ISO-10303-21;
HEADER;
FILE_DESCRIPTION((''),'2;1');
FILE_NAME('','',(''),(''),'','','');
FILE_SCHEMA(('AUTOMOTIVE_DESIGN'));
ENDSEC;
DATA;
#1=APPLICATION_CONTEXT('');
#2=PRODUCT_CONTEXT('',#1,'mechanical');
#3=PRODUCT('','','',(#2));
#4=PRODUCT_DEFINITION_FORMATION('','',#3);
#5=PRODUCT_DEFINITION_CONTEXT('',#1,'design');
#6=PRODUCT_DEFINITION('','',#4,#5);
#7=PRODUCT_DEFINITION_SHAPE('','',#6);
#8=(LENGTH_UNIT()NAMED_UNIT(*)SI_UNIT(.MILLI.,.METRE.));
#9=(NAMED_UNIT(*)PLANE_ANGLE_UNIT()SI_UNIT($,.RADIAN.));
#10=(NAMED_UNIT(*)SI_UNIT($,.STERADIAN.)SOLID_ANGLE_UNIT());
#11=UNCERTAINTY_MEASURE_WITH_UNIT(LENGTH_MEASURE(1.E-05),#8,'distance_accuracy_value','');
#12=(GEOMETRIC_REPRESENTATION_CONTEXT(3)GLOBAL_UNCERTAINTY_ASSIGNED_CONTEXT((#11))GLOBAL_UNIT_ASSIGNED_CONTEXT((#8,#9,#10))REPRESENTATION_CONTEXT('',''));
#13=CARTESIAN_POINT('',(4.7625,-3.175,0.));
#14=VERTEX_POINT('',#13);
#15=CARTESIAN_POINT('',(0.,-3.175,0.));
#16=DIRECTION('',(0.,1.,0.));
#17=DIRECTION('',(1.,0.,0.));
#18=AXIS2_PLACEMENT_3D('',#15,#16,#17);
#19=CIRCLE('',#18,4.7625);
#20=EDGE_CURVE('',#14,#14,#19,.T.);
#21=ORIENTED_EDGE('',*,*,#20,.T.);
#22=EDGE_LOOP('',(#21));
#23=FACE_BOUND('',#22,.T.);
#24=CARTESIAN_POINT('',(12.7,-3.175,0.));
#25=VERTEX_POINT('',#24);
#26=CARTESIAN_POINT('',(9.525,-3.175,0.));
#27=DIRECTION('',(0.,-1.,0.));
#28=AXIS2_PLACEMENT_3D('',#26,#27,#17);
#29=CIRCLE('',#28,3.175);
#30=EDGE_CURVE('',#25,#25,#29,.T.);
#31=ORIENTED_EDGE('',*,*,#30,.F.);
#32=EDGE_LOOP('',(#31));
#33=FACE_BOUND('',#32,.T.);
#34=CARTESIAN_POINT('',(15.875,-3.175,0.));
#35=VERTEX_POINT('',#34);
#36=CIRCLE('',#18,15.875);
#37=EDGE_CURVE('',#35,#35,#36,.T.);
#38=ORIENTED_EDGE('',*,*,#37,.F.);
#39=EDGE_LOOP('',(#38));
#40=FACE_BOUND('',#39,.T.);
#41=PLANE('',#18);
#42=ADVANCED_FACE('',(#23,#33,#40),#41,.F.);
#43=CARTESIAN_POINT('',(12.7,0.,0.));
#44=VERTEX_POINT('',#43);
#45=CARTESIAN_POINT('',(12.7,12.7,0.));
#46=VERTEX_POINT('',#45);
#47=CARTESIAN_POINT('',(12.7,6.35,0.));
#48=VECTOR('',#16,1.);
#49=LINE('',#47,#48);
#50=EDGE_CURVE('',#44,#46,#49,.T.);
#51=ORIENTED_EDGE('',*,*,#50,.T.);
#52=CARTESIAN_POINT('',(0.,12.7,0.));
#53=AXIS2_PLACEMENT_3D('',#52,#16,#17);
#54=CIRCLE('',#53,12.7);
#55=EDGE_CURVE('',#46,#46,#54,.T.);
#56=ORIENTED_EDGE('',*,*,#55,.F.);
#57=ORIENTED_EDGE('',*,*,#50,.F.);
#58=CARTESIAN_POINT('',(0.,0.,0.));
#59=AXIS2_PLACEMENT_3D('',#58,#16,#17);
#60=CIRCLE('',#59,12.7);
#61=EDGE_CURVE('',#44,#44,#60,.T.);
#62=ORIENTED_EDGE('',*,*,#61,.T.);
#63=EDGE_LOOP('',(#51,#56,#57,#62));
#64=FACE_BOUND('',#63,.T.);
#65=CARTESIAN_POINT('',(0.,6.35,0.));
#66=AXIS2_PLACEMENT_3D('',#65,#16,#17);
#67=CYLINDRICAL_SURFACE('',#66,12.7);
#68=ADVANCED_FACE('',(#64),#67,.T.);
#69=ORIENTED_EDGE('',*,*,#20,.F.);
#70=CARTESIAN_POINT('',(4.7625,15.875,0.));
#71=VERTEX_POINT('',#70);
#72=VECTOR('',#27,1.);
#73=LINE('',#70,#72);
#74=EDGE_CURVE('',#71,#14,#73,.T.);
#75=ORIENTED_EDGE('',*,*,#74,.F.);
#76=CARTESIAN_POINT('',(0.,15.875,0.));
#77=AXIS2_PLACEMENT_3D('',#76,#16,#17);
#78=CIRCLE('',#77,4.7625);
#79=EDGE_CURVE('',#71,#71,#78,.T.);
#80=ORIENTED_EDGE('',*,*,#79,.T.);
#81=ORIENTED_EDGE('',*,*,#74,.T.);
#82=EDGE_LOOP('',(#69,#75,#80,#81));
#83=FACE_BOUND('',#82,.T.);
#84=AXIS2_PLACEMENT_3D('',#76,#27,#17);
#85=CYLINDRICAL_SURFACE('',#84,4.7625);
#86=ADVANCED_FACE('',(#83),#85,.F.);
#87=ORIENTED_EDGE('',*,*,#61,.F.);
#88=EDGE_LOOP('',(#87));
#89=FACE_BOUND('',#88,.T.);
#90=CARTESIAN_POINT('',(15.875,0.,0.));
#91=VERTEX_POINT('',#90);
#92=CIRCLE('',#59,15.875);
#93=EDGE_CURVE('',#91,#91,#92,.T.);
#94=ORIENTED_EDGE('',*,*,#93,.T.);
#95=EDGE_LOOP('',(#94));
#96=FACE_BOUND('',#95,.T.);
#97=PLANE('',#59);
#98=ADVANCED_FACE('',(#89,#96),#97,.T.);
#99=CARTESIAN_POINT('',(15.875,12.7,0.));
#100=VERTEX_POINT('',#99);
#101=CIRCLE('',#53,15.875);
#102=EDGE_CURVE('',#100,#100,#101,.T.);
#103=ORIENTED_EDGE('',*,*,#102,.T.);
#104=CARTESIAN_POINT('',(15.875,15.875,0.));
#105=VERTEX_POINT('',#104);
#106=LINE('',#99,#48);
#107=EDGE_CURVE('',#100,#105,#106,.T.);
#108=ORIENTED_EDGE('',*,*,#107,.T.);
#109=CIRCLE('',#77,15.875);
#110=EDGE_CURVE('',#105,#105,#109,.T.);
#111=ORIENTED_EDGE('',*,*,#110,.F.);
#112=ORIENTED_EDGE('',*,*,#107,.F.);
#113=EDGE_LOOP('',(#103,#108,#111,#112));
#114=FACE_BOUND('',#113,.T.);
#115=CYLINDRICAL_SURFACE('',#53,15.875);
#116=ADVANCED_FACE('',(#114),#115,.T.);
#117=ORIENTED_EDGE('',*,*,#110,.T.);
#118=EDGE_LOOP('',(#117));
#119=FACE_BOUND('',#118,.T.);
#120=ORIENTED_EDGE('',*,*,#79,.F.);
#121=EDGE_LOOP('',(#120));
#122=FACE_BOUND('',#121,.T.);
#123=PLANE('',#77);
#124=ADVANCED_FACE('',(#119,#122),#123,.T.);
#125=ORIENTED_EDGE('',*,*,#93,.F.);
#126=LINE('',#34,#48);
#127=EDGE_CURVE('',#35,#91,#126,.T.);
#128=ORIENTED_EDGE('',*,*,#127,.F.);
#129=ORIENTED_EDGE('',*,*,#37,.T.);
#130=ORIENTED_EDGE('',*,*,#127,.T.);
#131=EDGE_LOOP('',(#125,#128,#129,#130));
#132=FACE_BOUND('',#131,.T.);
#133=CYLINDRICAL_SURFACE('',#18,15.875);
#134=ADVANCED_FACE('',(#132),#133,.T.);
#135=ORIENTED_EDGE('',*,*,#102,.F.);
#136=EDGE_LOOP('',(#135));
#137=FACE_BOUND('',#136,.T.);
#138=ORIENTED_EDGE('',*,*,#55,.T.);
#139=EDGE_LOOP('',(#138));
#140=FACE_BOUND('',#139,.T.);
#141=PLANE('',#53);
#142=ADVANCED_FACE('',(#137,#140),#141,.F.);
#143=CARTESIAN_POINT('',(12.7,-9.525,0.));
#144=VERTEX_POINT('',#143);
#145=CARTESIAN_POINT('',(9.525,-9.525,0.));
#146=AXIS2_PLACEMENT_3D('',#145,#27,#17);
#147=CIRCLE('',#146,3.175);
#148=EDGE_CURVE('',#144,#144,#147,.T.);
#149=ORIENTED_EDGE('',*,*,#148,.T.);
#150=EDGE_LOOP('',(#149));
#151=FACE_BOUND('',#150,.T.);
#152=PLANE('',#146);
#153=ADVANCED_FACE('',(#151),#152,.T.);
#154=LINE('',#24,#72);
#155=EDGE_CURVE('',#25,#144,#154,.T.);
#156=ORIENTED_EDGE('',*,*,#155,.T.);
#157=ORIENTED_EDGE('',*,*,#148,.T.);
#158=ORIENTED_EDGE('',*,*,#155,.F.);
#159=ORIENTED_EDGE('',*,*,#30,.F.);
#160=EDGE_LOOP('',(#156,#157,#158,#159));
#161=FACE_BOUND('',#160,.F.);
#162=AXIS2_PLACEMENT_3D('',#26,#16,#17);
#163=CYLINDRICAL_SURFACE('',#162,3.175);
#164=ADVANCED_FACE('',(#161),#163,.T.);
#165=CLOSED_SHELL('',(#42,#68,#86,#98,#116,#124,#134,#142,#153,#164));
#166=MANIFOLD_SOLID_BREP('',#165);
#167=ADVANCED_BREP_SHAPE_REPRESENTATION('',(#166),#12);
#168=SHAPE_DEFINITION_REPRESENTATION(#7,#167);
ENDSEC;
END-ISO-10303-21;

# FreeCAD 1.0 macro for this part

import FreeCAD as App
import Part
import Sketcher

V = App.Vector
Q = App.Units.Quantity

doc = App.newDocument("Part")
body = doc.addObject("PartDesign::Body", "Body")

# Sketch on XY plane
sketch1 = body.newObject("Sketcher::SketchObject", "Sketch")
sketch1.AttachmentSupport = (doc.getObject("XY_Plane"), [""])
sketch1.MapMode = "FlatFace"
sketch1.addGeometry(Part.LineSegment(V(4.8, -3.2, 0), V(15.9, -3.2, 0)), False)
sketch1.addGeometry(Part.LineSegment(V(15.9, -3.2, 0), V(15.9, 0, 0)), False)
sketch1.addGeometry(Part.LineSegment(V(15.9, 0, 0), V(12.7, 0, 0)), False)
sketch1.addGeometry(Part.LineSegment(V(12.7, 0, 0), V(12.7, 12.7, 0)), False)
sketch1.addGeometry(Part.LineSegment(V(12.7, 12.7, 0), V(15.9, 12.7, 0)), False)
sketch1.addGeometry(Part.LineSegment(V(15.9, 12.7, 0), V(15.9, 15.9, 0)), False)
sketch1.addGeometry(Part.LineSegment(V(15.9, 15.9, 0), V(4.8, 15.9, 0)), False)
sketch1.addGeometry(Part.LineSegment(V(4.8, 15.9, 0), V(4.8, -3.2, 0)), False)
sketch1.addConstraint(Sketcher.Constraint("Coincident", 0, 2, 1, 1))
sketch1.addConstraint(Sketcher.Constraint("Coincident", 1, 2, 2, 1))
sketch1.addConstraint(Sketcher.Constraint("Coincident", 2, 2, 3, 1))
sketch1.addConstraint(Sketcher.Constraint("Coincident", 3, 2, 4, 1))
sketch1.addConstraint(Sketcher.Constraint("Coincident", 4, 2, 5, 1))
sketch1.addConstraint(Sketcher.Constraint("Coincident", 5, 2, 6, 1))
sketch1.addConstraint(Sketcher.Constraint("Coincident", 6, 2, 7, 1))
sketch1.addConstraint(Sketcher.Constraint("Coincident", 7, 2, 0, 1))
sketch1.addConstraint(Sketcher.Constraint("Horizontal", 0))
sketch1.addConstraint(Sketcher.Constraint("Vertical", 1))
sketch1.addConstraint(Sketcher.Constraint("Horizontal", 2))
sketch1.addConstraint(Sketcher.Constraint("Vertical", 3))
sketch1.addConstraint(Sketcher.Constraint("Horizontal", 4))
sketch1.addConstraint(Sketcher.Constraint("Vertical", 5))
sketch1.addConstraint(Sketcher.Constraint("Horizontal", 6))
sketch1.addConstraint(Sketcher.Constraint("Vertical", 7))
sketch1.addConstraint(Sketcher.Constraint("PointOnObject", 1, 2, -1))
sketch1.addConstraint(Sketcher.Constraint("Vertical", 1, 2, 4, 2))
sketch1.addConstraint(Sketcher.Constraint("Equal", 4, 1))
sketch1.addConstraint(Sketcher.Constraint("Equal", 1, 5))
sketch1.addConstraint(Sketcher.Constraint("DistanceY", 3, 1, 3, 2, Q("0.5 in")))
sketch1.addConstraint(Sketcher.Constraint("DistanceY", 7, 2, 7, 1, Q("0.75 in")))
sketch1.addConstraint(Sketcher.Constraint("DistanceX", -1, 1, 2, 2, Q("0.5 in")))
sketch1.addConstraint(Sketcher.Constraint("DistanceX", 0, 1, 0, 2, Q("0.4375 in")))
revolution = body.newObject("PartDesign::Revolution", "Revolution")
revolution.Profile = sketch1
revolution.ReferenceAxis = (sketch1, ["V_Axis"])
revolution.Angle = 360

# Sketch on XZ plane
sketch2 = body.newObject("Sketcher::SketchObject", "Sketch001")
sketch2.AttachmentSupport = (doc.getObject("XZ_Plane"), [""])
sketch2.MapMode = "FlatFace"
sketch2.AttachmentOffset = App.Placement(V(0, 0, 0.125 * 25.4), App.Rotation())
sketch2.addGeometry(Part.Circle(V(9.5, 0, 0), V(0, 0, 1), 3.2), False)
sketch2.addConstraint(Sketcher.Constraint("PointOnObject", 0, 3, -1))
sketch2.addConstraint(Sketcher.Constraint("Diameter", 0, Q("0.25 in")))
sketch2.addConstraint(Sketcher.Constraint("DistanceX", -1, 1, 0, 3, Q("0.375 in")))
pad1 = body.newObject("PartDesign::Pad", "Pad")
pad1.Profile = sketch2
pad1.Length = Q("0.25 in")

doc.recompute()
